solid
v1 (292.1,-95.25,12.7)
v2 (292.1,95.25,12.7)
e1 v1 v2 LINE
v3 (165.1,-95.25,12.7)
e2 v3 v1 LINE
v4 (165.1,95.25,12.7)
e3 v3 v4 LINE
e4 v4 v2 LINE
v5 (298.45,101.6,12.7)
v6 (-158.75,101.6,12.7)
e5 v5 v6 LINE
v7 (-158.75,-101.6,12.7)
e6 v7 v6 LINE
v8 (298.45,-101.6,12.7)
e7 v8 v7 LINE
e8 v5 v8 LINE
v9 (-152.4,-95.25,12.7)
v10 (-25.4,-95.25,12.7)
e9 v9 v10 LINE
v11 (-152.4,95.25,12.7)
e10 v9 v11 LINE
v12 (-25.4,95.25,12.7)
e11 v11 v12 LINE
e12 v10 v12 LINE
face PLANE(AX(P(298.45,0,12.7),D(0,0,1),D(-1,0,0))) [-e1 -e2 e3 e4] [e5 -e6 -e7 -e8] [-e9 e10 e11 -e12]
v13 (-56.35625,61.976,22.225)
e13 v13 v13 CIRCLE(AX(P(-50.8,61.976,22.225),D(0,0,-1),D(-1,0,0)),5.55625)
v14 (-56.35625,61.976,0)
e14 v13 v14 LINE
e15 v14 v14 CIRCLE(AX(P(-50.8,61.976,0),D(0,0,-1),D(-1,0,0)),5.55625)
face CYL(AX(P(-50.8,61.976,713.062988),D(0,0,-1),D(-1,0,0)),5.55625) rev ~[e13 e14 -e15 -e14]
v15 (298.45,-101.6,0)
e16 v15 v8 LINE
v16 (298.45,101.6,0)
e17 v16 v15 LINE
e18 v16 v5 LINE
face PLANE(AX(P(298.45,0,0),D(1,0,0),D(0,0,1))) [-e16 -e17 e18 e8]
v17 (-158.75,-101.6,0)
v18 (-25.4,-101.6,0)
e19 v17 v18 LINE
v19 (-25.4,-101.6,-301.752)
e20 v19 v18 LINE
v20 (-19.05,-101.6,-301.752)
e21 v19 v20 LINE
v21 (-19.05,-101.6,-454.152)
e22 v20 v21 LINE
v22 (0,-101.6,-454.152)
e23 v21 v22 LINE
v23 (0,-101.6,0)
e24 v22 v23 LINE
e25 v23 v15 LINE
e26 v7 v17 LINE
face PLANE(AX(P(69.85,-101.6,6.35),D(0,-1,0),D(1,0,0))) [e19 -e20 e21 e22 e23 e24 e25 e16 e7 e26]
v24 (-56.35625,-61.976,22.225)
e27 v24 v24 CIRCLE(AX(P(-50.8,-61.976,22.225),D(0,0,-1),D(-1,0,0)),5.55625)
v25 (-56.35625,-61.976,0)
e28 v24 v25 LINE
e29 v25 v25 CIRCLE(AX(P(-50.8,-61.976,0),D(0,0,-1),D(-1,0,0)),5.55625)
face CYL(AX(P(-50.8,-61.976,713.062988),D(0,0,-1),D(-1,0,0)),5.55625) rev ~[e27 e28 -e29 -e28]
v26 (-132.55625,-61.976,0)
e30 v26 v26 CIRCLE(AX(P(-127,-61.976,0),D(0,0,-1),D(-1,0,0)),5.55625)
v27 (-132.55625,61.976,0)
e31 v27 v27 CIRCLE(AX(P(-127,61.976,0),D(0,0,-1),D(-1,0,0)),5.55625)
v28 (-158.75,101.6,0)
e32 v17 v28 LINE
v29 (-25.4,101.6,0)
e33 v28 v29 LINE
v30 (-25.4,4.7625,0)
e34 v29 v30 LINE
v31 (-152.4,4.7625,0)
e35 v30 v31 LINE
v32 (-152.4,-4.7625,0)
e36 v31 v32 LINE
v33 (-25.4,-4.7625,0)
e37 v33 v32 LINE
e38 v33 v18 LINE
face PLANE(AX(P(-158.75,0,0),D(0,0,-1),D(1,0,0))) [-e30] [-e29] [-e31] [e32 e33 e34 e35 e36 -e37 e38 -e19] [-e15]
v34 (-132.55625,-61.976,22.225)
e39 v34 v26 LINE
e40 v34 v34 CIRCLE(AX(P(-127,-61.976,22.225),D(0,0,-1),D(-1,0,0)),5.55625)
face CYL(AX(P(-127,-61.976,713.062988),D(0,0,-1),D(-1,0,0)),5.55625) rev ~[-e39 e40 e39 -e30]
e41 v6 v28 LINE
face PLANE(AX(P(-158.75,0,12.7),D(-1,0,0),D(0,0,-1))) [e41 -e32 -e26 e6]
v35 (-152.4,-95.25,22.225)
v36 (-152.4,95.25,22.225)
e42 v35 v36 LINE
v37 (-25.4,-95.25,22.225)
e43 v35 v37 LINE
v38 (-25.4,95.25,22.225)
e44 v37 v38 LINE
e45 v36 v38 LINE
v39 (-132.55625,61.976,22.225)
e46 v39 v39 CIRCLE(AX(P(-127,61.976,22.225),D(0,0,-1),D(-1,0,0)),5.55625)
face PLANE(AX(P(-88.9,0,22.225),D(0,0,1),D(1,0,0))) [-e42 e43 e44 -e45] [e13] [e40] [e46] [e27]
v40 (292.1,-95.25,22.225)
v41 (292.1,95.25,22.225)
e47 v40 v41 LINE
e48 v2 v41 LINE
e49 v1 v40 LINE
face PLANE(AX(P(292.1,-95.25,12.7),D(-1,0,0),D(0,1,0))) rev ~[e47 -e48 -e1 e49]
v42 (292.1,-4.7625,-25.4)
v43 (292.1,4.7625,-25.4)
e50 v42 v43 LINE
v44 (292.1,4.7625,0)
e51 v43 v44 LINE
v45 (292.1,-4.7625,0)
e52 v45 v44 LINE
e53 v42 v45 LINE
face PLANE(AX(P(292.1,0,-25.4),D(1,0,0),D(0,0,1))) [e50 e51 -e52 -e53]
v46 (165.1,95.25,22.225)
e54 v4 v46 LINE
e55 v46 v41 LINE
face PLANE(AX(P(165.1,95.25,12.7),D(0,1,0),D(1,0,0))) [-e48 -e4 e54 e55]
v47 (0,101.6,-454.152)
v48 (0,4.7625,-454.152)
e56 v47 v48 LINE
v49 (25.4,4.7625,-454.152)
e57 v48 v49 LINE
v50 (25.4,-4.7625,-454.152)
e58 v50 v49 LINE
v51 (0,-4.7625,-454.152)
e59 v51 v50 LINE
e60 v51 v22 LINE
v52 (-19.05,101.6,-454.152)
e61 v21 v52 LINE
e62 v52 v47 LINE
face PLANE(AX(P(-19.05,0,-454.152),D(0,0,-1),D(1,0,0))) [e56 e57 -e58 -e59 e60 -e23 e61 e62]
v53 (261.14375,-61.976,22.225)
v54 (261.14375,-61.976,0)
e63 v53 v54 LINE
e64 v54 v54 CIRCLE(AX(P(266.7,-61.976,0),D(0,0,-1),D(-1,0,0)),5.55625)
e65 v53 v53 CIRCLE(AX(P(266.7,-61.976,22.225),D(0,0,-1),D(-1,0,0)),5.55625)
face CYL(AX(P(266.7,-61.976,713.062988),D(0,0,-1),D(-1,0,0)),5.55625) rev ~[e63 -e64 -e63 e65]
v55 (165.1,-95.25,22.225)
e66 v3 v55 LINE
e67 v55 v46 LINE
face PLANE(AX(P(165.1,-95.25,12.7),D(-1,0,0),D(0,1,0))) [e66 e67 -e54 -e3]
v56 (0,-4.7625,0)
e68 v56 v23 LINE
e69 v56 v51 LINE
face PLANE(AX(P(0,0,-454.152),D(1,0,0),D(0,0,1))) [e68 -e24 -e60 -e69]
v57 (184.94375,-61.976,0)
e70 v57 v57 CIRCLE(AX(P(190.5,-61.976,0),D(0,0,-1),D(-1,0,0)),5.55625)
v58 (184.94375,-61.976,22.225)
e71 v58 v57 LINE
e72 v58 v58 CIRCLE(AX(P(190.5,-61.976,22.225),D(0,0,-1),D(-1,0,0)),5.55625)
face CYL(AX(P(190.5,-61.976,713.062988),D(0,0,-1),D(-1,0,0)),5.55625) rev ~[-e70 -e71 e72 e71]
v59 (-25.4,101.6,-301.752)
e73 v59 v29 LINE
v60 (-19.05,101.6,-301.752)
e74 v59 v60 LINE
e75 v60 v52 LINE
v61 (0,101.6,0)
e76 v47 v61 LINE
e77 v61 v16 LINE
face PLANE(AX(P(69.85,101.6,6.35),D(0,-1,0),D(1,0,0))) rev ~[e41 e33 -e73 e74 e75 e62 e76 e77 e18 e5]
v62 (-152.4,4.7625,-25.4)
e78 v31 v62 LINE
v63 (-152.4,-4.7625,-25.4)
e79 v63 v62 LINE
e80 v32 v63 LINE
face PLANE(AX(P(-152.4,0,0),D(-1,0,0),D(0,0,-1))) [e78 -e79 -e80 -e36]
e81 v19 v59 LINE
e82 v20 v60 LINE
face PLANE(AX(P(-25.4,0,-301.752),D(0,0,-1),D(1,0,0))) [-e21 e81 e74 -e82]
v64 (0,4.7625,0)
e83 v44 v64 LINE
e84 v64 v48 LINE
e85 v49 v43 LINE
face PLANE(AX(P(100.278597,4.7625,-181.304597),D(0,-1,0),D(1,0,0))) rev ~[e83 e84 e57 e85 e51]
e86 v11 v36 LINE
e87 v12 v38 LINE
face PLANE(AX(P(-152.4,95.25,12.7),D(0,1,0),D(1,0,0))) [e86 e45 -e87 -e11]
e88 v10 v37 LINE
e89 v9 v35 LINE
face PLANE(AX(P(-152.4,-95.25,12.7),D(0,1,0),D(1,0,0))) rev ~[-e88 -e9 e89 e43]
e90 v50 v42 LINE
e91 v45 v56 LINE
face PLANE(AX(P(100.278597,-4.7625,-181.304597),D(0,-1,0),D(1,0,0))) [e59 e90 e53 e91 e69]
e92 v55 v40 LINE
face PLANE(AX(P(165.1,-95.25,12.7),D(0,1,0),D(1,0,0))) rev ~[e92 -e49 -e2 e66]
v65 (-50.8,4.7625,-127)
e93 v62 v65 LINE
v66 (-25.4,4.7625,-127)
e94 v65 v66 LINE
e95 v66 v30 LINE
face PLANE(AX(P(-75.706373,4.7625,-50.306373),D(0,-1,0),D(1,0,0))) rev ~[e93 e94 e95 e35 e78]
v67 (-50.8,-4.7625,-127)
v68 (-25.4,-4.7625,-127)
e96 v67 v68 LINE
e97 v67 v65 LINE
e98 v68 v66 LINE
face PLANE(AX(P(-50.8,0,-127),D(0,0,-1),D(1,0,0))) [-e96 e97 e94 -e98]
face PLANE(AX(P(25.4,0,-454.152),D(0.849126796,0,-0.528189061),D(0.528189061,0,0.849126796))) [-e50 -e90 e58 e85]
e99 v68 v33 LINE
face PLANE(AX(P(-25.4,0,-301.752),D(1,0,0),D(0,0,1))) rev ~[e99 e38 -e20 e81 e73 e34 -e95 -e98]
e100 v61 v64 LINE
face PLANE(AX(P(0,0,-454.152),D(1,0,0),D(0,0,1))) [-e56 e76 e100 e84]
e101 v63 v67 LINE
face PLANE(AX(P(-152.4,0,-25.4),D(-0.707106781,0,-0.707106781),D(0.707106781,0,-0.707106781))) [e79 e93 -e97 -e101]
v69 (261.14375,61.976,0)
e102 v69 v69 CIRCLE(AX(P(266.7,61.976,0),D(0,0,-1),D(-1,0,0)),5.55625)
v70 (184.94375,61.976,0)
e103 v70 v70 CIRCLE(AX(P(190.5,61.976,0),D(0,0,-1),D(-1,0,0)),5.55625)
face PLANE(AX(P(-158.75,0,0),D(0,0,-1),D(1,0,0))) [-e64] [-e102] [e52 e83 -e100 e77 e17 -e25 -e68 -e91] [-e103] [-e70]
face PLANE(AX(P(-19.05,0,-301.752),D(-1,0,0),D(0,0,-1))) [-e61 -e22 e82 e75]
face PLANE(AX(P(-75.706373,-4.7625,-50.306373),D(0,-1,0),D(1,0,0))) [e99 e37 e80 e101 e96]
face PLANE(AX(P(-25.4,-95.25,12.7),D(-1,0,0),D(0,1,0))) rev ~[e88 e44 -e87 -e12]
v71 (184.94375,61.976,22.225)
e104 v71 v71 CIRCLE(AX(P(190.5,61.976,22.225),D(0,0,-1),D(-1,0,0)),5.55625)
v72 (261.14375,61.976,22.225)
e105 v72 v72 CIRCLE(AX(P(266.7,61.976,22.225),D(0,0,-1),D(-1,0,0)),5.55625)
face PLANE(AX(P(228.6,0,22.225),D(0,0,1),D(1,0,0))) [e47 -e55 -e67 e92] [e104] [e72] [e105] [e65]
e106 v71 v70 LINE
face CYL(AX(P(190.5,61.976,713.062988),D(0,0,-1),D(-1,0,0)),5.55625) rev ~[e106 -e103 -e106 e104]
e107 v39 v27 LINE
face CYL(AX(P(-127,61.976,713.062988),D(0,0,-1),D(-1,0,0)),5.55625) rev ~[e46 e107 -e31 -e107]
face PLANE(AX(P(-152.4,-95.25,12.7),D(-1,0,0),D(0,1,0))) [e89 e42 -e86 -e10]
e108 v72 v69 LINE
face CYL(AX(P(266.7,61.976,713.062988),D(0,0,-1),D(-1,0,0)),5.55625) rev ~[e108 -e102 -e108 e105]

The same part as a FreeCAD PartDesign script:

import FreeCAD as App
import Part
import Sketcher
from FreeCAD import Vector
Q = App.Units.Quantity

doc = App.newDocument("Part")
body = doc.addObject("PartDesign::Body", "Body")

# Sketch on XZ plane
sketch1 = body.newObject("Sketcher::SketchObject", "Sketch")
sketch1.AttachmentSupport = (doc.getObject("XZ_Plane"), [""])
sketch1.MapMode = "FlatFace"
sketch1.addGeometry([
    Part.LineSegment(Vector(-19, -454, 0), Vector(0, -454, 0)),  # 0
    Part.LineSegment(Vector(0, -454, 0), Vector(0, 0, 0)),  # 1
    Part.LineSegment(Vector(0, 0, 0), Vector(-25, 0, 0)),  # 2
    Part.LineSegment(Vector(-25, 0, 0), Vector(-25, -302, 0)),  # 3
    Part.LineSegment(Vector(-25, -302, 0), Vector(-19, -302, 0)),  # 4
    Part.LineSegment(Vector(-19, -302, 0), Vector(-19, -454, 0)),  # 5
], False)
sketch1.addConstraint([
    Sketcher.Constraint("Coincident", 0, 2, 1, 1),
    Sketcher.Constraint("Coincident", 1, 2, 2, 1),
    Sketcher.Constraint("Coincident", 2, 2, 3, 1),
    Sketcher.Constraint("Coincident", 3, 2, 4, 1),
    Sketcher.Constraint("Coincident", 4, 2, 5, 1),
    Sketcher.Constraint("Coincident", 5, 2, 0, 1),
    Sketcher.Constraint("Horizontal", 0),
    Sketcher.Constraint("Vertical", 1),
    Sketcher.Constraint("Horizontal", 2),
    Sketcher.Constraint("Vertical", 3),
    Sketcher.Constraint("Horizontal", 4),
    Sketcher.Constraint("Vertical", 5),
    Sketcher.Constraint("Coincident", 1, 2, -1, 1),
    Sketcher.Constraint("DistanceX", 2, 2, 2, 1, Q("1 in")),
    Sketcher.Constraint("DistanceY", 5, 2, 5, 1, Q("6 in")),
    Sketcher.Constraint("DistanceX", 0, 1, 0, 2, Q("0.75 in")),
    Sketcher.Constraint("DistanceY", 1, 1, 1, 2, Q("17.88 in")),
])
pad1 = body.newObject("PartDesign::Pad", "Pad")
pad1.Profile = sketch1
pad1.Length = Q("8 in")
pad1.Midplane = True

# Sketch on XZ plane
sketch2 = body.newObject("Sketcher::SketchObject", "Sketch001")
sketch2.AttachmentSupport = (doc.getObject("XZ_Plane"), [""])
sketch2.MapMode = "FlatFace"
sketch2.addGeometry([
    Part.LineSegment(Vector(-159, 0, 0), Vector(298, 0, 0)),
    Part.LineSegment(Vector(298, 0, 0), Vector(298, 13, 0)),
    Part.LineSegment(Vector(298, 13, 0), Vector(-159, 13, 0)),
    Part.LineSegment(Vector(-159, 13, 0), Vector(-159, 0, 0)),
], False)
sketch2.addConstraint([
    Sketcher.Constraint("Coincident", 0, 2, 1, 1),
    Sketcher.Constraint("Coincident", 1, 2, 2, 1),
    Sketcher.Constraint("Coincident", 2, 2, 3, 1),
    Sketcher.Constraint("Coincident", 3, 2, 0, 1),
    Sketcher.Constraint("Horizontal", 0),
    Sketcher.Constraint("Vertical", 1),
    Sketcher.Constraint("Horizontal", 2),
    Sketcher.Constraint("Vertical", 3),
    Sketcher.Constraint("PointOnObject", 0, 2, -1),
    Sketcher.Constraint("DistanceX", 0, 1, 0, 2, Q("18 in")),
    Sketcher.Constraint("DistanceY", 1, 1, 1, 2, Q("0.5 in")),
    Sketcher.Constraint("DistanceX", -1, 1, 0, 2, Q("11.75 in")),
])
pad2 = body.newObject("PartDesign::Pad", "Pad001")
pad2.Profile = sketch2
pad2.Length = Q("8 in")
pad2.Midplane = True

# Sketch on XZ plane
sketch3 = body.newObject("Sketcher::SketchObject", "Sketch002")
sketch3.AttachmentSupport = (doc.getObject("XZ_Plane"), [""])
sketch3.MapMode = "FlatFace"
sketch3.addGeometry([
    Part.LineSegment(Vector(-25, -127, 0), Vector(-25, 0, 0)),  # 0
    Part.LineSegment(Vector(-25, 0, 0), Vector(-152, 0, 0)),  # 1
    Part.LineSegment(Vector(-152, 0, 0), Vector(-152, -25, 0)),  # 2
    Part.LineSegment(Vector(-152, -25, 0), Vector(-51, -127, 0)),  # 3
    Part.LineSegment(Vector(-51, -127, 0), Vector(-25, -127, 0)),  # 4
], False)
sketch3.addConstraint([
    Sketcher.Constraint("Coincident", 0, 2, 1, 1),
    Sketcher.Constraint("Coincident", 1, 2, 2, 1),
    Sketcher.Constraint("Coincident", 2, 2, 3, 1),
    Sketcher.Constraint("Coincident", 3, 2, 4, 1),
    Sketcher.Constraint("Coincident", 4, 2, 0, 1),
    Sketcher.Constraint("Vertical", 0),
    Sketcher.Constraint("Horizontal", 1),
    Sketcher.Constraint("Vertical", 2),
    Sketcher.Constraint("Horizontal", 4),
    Sketcher.Constraint("PointOnObject", 0, 2, -1),
    Sketcher.Constraint("Equal", 1, 0),
    Sketcher.Constraint("Equal", 4, 2),
    Sketcher.Constraint("DistanceX", 1, 2, 1, 1, Q("5 in")),
    Sketcher.Constraint("DistanceX", 4, 1, 4, 2, Q("1 in")),
    Sketcher.Constraint("DistanceX", 0, 2, -1, 1, Q("1 in")),
])
pad3 = body.newObject("PartDesign::Pad", "Pad002")
pad3.Profile = sketch3
pad3.Length = Q("0.375 in")
pad3.Midplane = True

# Sketch on XZ plane
sketch4 = body.newObject("Sketcher::SketchObject", "Sketch003")
sketch4.AttachmentSupport = (doc.getObject("XZ_Plane"), [""])
sketch4.MapMode = "FlatFace"
sketch4.addGeometry([
    Part.LineSegment(Vector(292, 0, 0), Vector(0, 0, 0)),  # 0
    Part.LineSegment(Vector(0, 0, 0), Vector(0, -454, 0)),  # 1
    Part.LineSegment(Vector(0, -454, 0), Vector(25, -454, 0)),  # 2
    Part.LineSegment(Vector(25, -454, 0), Vector(292, -25, 0)),  # 3
    Part.LineSegment(Vector(292, -25, 0), Vector(292, 0, 0)),  # 4
], False)
sketch4.addConstraint([
    Sketcher.Constraint("Coincident", 0, 2, 1, 1),
    Sketcher.Constraint("Coincident", 1, 2, 2, 1),
    Sketcher.Constraint("Coincident", 2, 2, 3, 1),
    Sketcher.Constraint("Coincident", 3, 2, 4, 1),
    Sketcher.Constraint("Coincident", 4, 2, 0, 1),
    Sketcher.Constraint("Horizontal", 0),
    Sketcher.Constraint("Vertical", 1),
    Sketcher.Constraint("Horizontal", 2),
    Sketcher.Constraint("Vertical", 4),
    Sketcher.Constraint("Coincident", 0, 2, -1, 1),
    Sketcher.Constraint("Equal", 2, 4),
    Sketcher.Constraint("DistanceX", 2, 1, 2, 2, Q("1 in")),
    Sketcher.Constraint("DistanceX", 0, 2, 0, 1, Q("11.5 in")),
    Sketcher.Constraint("DistanceY", 1, 2, 1, 1, Q("17.88 in")),
])
pad4 = body.newObject("PartDesign::Pad", "Pad003")
pad4.Profile = sketch4
pad4.Length = Q("0.375 in")
pad4.Midplane = True

# Sketch on XY plane
sketch5 = body.newObject("Sketcher::SketchObject", "Sketch004")
sketch5.AttachmentSupport = (doc.getObject("XY_Plane"), [""])
sketch5.MapMode = "FlatFace"
sketch5.AttachmentOffset = App.Placement(Vector(0, 0, 0.5 * 25.4), App.Rotation())
sketch5.addGeometry([
    Part.LineSegment(Vector(-152, 95, 0), Vector(-152, -95, 0)),  # 0
    Part.LineSegment(Vector(-152, -95, 0), Vector(-25, -95, 0)),  # 1
    Part.LineSegment(Vector(-25, -95, 0), Vector(-25, 95, 0)),  # 2
    Part.LineSegment(Vector(-25, 95, 0), Vector(-152, 95, 0)),  # 3
    Part.LineSegment(Vector(165, 95, 0), Vector(165, -95, 0)),  # 4
    Part.LineSegment(Vector(165, -95, 0), Vector(292, -95, 0)),  # 5
    Part.LineSegment(Vector(292, -95, 0), Vector(292, 95, 0)),  # 6
    Part.LineSegment(Vector(292, 95, 0), Vector(165, 95, 0)),  # 7
], False)
sketch5.addConstraint([
    Sketcher.Constraint("Coincident", 0, 2, 1, 1),
    Sketcher.Constraint("Coincident", 1, 2, 2, 1),
    Sketcher.Constraint("Coincident", 2, 2, 3, 1),
    Sketcher.Constraint("Coincident", 3, 2, 0, 1),
    Sketcher.Constraint("Coincident", 4, 2, 5, 1),
    Sketcher.Constraint("Coincident", 5, 2, 6, 1),
    Sketcher.Constraint("Coincident", 6, 2, 7, 1),
    Sketcher.Constraint("Coincident", 7, 2, 4, 1),
    Sketcher.Constraint("Vertical", 0),
    Sketcher.Constraint("Horizontal", 1),
    Sketcher.Constraint("Vertical", 2),
    Sketcher.Constraint("Horizontal", 3),
    Sketcher.Constraint("Vertical", 4),
    Sketcher.Constraint("Horizontal", 5),
    Sketcher.Constraint("Vertical", 6),
    Sketcher.Constraint("Horizontal", 7),
    Sketcher.Constraint("Horizontal", 1, 2, 4, 2),
    Sketcher.Constraint("Horizontal", 3, 2, 6, 2),
    Sketcher.Constraint("Equal", 3, 5),
    Sketcher.Constraint("DistanceX", 1, 1, 1, 2, Q("5 in")),
    Sketcher.Constraint("DistanceY", 0, 2, 0, 1, Q("7.5 in")),
    Sketcher.Constraint("DistanceX", 0, 2, -1, 1, Q("6 in")),
    Sketcher.Constraint("DistanceX", -1, 1, 4, 2, Q("6.5 in")),
    Sketcher.Constraint("DistanceY", 0, 2, -1, 1, Q("3.75 in")),
])
pad5 = body.newObject("PartDesign::Pad", "Pad004")
pad5.Profile = sketch5
pad5.Length = Q("0.375 in")

# Sketch on XY plane
sketch6 = body.newObject("Sketcher::SketchObject", "Sketch005")
sketch6.AttachmentSupport = (doc.getObject("XY_Plane"), [""])
sketch6.MapMode = "FlatFace"
sketch6.AttachmentOffset = App.Placement(Vector(0, 0, 0.875 * 25.4), App.Rotation())
sketch6.addGeometry([
    Part.Circle(Vector(-127, 62, 0), Vector(0, 0, 1), 6),  # 0
    Part.Circle(Vector(-51, 62, 0), Vector(0, 0, 1), 6),  # 1
    Part.Circle(Vector(-127, -62, 0), Vector(0, 0, 1), 6),  # 2
    Part.Circle(Vector(-51, -62, 0), Vector(0, 0, 1), 6),  # 3
    Part.Circle(Vector(190, 62, 0), Vector(0, 0, 1), 6),  # 4
    Part.Circle(Vector(267, 62, 0), Vector(0, 0, 1), 6),  # 5
    Part.Circle(Vector(267, -62, 0), Vector(0, 0, 1), 6),  # 6
    Part.Circle(Vector(190, -62, 0), Vector(0, 0, 1), 6),  # 7
], False)
sketch6.addConstraint([
    Sketcher.Constraint("Equal", 0, 1),
    Sketcher.Constraint("Equal", 1, 2),
    Sketcher.Constraint("Equal", 2, 3),
    Sketcher.Constraint("Equal", 3, 4),
    Sketcher.Constraint("Equal", 4, 5),
    Sketcher.Constraint("Equal", 5, 6),
    Sketcher.Constraint("Equal", 6, 7),
    Sketcher.Constraint("Symmetric", 0, 3, 2, 3, -1),
    Sketcher.Constraint("Symmetric", 1, 3, 3, 3, -1),
    Sketcher.Constraint("Symmetric", 5, 3, 6, 3, -1),
    Sketcher.Constraint("Symmetric", 4, 3, 7, 3, -1),
    Sketcher.Constraint("Horizontal", 0, 3, 1, 3),
    Sketcher.Constraint("Horizontal", 1, 3, 4, 3),
    Sketcher.Constraint("Horizontal", 4, 3, 5, 3),
    Sketcher.Constraint("Diameter", 0, Q("0.4375 in")),
    Sketcher.Constraint("DistanceX", 0, 3, -1, 1, Q("5 in")),
    Sketcher.Constraint("DistanceX", 1, 3, -1, 1, Q("2 in")),
    Sketcher.Constraint("DistanceX", 4, 3, 5, 3, Q("3 in")),
    Sketcher.Constraint("DistanceX", -1, 1, 4, 3, Q("7.5 in")),
    Sketcher.Constraint("DistanceY", -1, 1, 0, 3, Q("2.44 in")),
])
doc.recompute()
hole = body.newObject("PartDesign::Hole", "Hole")
hole.Profile = sketch6
hole.ThreadType = "None"
hole.Diameter = Q("0.4375 in")
hole.DepthType = "ThroughAll"

doc.recompute()
